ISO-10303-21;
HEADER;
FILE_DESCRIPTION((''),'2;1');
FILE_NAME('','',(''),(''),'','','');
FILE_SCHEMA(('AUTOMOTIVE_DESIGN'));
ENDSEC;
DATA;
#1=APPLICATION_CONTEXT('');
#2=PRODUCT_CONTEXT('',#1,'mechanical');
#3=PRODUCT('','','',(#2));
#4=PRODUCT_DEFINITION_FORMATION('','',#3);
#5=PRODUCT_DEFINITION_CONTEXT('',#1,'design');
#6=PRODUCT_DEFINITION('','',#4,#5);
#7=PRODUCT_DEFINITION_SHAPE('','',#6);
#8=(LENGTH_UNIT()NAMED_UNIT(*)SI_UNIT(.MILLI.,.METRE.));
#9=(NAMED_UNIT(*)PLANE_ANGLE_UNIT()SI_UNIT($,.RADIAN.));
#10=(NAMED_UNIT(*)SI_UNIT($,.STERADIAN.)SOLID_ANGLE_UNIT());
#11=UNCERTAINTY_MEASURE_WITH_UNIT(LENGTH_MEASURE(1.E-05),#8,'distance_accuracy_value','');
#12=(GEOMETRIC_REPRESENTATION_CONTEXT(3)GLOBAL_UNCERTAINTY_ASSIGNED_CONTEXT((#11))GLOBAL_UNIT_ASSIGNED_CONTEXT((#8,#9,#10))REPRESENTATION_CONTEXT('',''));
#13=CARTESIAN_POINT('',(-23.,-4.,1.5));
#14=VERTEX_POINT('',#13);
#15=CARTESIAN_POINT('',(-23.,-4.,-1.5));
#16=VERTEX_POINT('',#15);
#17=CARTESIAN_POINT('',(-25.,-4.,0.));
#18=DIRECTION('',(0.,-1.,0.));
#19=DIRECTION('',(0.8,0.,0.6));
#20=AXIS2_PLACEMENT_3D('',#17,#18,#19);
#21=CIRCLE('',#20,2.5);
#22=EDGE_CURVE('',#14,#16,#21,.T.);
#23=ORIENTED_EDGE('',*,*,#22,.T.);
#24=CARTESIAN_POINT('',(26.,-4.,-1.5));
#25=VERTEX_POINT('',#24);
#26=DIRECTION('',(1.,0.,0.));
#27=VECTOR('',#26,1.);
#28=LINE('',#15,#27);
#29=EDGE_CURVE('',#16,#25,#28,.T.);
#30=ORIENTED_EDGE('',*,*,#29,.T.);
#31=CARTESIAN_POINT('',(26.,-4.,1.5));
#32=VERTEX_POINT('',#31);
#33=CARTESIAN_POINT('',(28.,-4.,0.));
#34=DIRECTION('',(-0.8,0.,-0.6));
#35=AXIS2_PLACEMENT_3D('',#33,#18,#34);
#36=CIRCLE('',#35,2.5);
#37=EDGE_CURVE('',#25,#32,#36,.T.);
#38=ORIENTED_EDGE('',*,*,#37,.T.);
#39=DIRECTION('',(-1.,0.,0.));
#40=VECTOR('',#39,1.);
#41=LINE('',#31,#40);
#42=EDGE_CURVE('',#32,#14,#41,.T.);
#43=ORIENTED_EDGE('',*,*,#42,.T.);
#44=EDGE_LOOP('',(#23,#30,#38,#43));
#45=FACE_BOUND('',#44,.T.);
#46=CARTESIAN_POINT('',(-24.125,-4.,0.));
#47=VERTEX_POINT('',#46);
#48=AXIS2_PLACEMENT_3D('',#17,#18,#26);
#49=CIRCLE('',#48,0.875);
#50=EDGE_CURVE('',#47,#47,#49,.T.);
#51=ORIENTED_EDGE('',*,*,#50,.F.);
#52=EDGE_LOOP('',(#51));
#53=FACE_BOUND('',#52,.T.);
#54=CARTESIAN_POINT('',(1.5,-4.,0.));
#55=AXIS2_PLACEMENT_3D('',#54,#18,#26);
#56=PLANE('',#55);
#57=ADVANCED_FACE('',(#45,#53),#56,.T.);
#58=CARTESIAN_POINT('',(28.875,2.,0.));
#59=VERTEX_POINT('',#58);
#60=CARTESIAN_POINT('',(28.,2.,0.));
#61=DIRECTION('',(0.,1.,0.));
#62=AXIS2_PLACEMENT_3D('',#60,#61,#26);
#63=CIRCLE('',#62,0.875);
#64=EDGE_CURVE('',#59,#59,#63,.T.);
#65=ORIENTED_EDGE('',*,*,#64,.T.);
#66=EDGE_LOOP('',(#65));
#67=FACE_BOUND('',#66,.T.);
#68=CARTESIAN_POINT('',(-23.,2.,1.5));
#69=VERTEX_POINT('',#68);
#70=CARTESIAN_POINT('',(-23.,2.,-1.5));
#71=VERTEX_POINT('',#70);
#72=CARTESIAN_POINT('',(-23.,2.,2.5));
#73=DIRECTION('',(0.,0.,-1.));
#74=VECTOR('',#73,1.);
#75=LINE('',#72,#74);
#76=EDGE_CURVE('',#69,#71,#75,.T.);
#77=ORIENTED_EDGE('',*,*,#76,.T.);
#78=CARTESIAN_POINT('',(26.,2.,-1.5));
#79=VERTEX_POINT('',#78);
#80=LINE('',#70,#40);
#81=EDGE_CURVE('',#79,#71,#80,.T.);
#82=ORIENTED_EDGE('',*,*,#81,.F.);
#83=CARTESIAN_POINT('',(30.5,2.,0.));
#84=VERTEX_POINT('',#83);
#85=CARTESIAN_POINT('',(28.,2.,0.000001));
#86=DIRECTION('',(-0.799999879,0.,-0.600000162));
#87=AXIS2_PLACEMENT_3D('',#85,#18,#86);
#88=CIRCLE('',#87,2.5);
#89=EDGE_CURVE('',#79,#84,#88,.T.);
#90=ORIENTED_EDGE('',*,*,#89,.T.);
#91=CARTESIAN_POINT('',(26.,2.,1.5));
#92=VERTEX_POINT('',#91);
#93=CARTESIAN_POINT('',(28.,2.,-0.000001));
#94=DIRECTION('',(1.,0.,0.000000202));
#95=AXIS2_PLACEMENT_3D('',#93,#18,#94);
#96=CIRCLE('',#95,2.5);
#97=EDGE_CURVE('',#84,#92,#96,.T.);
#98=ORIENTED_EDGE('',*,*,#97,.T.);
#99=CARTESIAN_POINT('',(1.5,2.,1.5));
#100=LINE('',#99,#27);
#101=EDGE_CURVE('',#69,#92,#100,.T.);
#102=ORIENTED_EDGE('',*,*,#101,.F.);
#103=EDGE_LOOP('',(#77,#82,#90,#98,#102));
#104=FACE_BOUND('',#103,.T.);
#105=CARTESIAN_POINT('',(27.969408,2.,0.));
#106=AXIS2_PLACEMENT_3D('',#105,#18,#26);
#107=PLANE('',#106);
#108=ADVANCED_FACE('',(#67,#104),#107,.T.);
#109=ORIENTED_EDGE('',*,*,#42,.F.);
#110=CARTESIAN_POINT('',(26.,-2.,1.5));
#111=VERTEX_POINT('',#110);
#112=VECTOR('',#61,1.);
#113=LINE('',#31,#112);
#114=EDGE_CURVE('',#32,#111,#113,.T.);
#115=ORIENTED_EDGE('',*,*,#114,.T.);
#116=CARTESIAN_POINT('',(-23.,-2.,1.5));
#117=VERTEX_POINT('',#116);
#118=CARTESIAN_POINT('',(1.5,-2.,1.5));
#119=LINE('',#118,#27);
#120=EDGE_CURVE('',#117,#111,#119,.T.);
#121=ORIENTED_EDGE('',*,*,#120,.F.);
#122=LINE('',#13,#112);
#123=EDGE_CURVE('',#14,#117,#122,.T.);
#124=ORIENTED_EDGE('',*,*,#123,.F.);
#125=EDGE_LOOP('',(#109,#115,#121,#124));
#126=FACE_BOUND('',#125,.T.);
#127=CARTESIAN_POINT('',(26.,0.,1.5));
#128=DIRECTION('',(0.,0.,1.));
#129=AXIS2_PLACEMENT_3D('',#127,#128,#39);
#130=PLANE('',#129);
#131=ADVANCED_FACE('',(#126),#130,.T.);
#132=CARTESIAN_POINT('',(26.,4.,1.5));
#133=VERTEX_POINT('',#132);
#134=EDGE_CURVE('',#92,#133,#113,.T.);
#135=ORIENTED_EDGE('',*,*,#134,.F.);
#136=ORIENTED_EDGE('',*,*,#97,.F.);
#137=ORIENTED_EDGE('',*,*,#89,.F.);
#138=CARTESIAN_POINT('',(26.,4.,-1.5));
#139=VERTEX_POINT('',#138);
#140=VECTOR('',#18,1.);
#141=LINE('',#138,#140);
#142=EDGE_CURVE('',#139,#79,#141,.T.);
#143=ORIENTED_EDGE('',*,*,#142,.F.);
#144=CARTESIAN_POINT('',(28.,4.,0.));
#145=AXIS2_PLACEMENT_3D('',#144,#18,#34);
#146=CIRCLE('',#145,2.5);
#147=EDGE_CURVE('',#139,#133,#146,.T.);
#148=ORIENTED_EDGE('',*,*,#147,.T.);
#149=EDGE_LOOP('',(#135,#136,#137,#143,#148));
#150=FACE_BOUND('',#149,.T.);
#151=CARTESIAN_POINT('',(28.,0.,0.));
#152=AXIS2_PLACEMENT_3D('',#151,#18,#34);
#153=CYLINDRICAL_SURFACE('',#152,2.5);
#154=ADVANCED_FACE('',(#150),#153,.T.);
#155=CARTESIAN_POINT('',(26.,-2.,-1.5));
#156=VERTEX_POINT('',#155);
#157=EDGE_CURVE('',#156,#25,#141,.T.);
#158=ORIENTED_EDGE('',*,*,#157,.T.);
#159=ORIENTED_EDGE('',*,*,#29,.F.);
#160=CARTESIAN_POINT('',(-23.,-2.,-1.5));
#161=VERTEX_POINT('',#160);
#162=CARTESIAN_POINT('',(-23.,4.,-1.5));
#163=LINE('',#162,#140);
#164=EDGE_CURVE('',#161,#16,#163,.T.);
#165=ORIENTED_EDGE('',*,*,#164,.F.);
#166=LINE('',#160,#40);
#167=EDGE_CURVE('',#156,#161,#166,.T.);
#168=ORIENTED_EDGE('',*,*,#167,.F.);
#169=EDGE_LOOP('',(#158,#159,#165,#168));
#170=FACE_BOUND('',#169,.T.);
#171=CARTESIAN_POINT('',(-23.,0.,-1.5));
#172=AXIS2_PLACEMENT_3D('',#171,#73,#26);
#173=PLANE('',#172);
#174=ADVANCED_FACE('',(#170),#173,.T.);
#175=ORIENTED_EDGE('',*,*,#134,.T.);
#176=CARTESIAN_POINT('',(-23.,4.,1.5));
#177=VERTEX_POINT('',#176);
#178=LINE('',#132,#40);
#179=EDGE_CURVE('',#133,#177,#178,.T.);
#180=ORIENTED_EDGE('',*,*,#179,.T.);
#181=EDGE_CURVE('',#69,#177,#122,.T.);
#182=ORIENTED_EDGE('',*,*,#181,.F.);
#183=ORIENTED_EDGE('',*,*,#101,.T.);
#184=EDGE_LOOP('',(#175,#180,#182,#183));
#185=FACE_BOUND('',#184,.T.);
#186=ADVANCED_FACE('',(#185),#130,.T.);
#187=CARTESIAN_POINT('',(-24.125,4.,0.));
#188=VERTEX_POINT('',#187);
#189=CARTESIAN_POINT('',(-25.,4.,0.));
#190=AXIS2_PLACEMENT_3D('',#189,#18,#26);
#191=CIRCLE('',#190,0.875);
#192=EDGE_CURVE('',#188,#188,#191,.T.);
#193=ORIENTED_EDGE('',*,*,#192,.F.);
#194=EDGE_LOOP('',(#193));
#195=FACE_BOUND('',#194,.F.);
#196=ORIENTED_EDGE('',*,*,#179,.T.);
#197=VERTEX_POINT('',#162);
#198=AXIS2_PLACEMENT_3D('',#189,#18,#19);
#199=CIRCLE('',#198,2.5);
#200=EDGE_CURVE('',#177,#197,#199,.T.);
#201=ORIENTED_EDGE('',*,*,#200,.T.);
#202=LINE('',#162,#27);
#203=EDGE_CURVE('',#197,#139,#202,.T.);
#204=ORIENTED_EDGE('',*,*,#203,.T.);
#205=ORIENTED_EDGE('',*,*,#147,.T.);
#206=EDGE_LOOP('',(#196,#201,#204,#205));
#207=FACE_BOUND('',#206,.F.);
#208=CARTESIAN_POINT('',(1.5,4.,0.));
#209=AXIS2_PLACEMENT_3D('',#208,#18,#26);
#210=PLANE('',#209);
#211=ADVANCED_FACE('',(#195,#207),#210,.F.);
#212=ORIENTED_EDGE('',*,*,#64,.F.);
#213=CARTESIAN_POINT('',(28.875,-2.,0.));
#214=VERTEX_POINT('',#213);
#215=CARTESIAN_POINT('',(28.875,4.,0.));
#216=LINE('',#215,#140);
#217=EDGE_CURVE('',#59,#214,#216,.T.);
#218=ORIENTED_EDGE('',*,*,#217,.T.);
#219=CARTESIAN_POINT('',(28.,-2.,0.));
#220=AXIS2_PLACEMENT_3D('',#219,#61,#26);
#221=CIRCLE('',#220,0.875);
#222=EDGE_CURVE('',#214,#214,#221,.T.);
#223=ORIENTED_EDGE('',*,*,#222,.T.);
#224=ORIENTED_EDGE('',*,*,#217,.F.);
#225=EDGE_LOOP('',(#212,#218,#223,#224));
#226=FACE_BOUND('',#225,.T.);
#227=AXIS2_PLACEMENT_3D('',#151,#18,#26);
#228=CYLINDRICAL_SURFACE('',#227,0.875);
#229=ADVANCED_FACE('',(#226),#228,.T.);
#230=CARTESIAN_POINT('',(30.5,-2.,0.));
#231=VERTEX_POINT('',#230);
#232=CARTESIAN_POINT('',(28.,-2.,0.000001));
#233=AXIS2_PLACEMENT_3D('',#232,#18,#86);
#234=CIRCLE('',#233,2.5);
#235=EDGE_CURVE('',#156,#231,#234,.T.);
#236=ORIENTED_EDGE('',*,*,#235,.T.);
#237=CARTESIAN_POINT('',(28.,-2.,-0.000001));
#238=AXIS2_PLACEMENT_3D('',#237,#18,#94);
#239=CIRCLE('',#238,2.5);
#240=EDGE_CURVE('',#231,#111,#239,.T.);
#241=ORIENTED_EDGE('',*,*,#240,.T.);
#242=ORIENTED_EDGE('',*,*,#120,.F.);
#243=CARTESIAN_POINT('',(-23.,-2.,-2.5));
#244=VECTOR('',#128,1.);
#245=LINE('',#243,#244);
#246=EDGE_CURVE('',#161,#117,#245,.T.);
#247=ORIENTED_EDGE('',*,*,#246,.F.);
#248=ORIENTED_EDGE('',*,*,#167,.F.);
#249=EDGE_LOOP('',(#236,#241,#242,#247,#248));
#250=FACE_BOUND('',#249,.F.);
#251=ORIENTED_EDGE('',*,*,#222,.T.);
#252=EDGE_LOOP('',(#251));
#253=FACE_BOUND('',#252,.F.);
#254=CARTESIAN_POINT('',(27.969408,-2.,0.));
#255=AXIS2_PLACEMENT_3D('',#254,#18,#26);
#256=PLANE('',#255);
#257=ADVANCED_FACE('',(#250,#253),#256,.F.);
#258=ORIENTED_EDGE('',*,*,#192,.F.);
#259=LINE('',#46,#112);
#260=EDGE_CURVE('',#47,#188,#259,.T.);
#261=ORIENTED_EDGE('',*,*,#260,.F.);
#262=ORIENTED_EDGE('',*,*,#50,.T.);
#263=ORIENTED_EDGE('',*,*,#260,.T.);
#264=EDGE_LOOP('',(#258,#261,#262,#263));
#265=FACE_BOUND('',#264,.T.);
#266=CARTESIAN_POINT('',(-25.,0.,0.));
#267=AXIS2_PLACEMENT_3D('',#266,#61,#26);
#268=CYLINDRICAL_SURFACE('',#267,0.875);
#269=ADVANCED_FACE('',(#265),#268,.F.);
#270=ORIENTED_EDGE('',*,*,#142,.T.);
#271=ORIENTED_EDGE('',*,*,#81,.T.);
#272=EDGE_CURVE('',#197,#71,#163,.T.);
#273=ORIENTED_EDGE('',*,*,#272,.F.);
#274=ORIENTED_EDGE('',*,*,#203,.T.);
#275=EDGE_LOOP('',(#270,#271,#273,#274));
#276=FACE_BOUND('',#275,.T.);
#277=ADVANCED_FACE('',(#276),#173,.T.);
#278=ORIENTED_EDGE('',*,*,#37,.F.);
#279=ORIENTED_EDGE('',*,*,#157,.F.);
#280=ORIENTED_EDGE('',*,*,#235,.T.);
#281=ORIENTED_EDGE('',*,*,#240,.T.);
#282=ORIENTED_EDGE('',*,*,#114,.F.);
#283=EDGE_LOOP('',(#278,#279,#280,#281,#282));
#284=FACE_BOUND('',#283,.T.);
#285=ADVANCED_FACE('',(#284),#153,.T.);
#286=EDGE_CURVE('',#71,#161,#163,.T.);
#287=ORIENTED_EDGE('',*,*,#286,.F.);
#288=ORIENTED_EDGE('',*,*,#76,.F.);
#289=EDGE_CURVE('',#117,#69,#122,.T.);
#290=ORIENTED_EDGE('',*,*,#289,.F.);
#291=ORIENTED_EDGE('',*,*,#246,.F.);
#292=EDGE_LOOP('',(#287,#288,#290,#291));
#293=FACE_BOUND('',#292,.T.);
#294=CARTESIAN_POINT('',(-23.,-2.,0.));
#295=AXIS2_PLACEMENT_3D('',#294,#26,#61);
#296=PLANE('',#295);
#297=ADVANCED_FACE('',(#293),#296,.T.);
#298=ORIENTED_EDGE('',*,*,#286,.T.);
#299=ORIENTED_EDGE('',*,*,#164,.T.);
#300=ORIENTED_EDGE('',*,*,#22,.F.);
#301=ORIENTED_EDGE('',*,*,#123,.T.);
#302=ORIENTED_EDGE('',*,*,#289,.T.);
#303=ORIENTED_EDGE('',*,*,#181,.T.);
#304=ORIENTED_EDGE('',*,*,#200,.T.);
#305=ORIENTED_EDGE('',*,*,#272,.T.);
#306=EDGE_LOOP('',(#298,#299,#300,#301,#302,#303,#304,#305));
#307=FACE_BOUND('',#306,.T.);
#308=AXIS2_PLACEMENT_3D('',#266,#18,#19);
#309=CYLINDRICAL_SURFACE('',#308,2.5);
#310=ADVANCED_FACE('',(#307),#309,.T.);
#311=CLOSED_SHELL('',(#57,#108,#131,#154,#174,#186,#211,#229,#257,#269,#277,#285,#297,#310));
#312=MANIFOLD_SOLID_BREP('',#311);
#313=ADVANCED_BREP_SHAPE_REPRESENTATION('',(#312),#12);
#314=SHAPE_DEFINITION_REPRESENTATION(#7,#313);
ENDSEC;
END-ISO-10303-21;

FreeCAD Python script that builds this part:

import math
import FreeCAD as App
import Part
import Sketcher


def add_polygon(sketch, points):
    """Adds a closed chain of lines whose ends are joined by coincident constraints."""
    first, n = sketch.GeometryCount, len(points)
    for a, b in zip(points, points[1:] + points[:1]):
        sketch.addGeometry(Part.LineSegment(App.Vector(*a, 0), App.Vector(*b, 0)), False)
    for i in range(n):
        sketch.addConstraint(Sketcher.Constraint("Coincident", first + i, 2, first + (i + 1) % n, 1))

doc = App.newDocument("Part")
body = doc.addObject("PartDesign::Body", "Body")

# Sketch on XZ plane
sketch1 = body.newObject("Sketcher::SketchObject", "Sketch")
sketch1.AttachmentSupport = (doc.getObject("XZ_Plane"), [""])
sketch1.MapMode = "FlatFace"
sketch1.addGeometry([
    Part.ArcOfCircle(Part.Circle(App.Vector(-25, 0, 0), App.Vector(0, 0, 1), 2.5), math.radians(37), math.radians(323)),  # 0
    Part.LineSegment(App.Vector(-23, -1.5, 0), App.Vector(26, -1.5, 0)),  # 1
    Part.ArcOfCircle(Part.Circle(App.Vector(28, 0, 0), App.Vector(0, 0, 1), 2.5), math.radians(-143), math.radians(143)),  # 2
    Part.LineSegment(App.Vector(26, 1.5, 0), App.Vector(-23, 1.5, 0)),  # 3
    Part.Circle(App.Vector(-25, 0, 0), App.Vector(0, 0, 1), 0.9),  # 4
    Part.Circle(App.Vector(28, 0, 0), App.Vector(0, 0, 1), 0.9),  # 5
], False)
sketch1.addConstraint([
    Sketcher.Constraint("Coincident", 0, 2, 1, 1),
    Sketcher.Constraint("Coincident", 1, 2, 2, 1),
    Sketcher.Constraint("Coincident", 2, 2, 3, 1),
    Sketcher.Constraint("Coincident", 3, 2, 0, 1),
    Sketcher.Constraint("Horizontal", 1),
    Sketcher.Constraint("Horizontal", 3),
    Sketcher.Constraint("Coincident", 4, 3, 0, 3),
    Sketcher.Constraint("Coincident", 5, 3, 2, 3),
    Sketcher.Constraint("Equal", 0, 2),
    Sketcher.Constraint("Equal", 4, 5),
    Sketcher.Constraint("Symmetric", 1, 2, 2, 2, -1),
    Sketcher.Constraint("PointOnObject", 0, 3, -1),
    Sketcher.Constraint("Radius", 0, 2.5),
    Sketcher.Constraint("Diameter", 4, 1.75),
    Sketcher.Constraint("DistanceX", 1, 1, 1, 2, 49.0),
    Sketcher.Constraint("DistanceX", 0, 3, -1, 1, 25.0),
    Sketcher.Constraint("DistanceX", -1, 1, 2, 3, 28.0),
])
pad1 = body.newObject("PartDesign::Pad", "Pad")
pad1.Profile = sketch1
pad1.Length = 8
pad1.Midplane = True

# Sketch on XZ plane
sketch2 = body.newObject("Sketcher::SketchObject", "Sketch001")
sketch2.AttachmentSupport = (doc.getObject("XZ_Plane"), [""])
sketch2.MapMode = "FlatFace"
sketch2.addGeometry([
    Part.ArcOfCircle(Part.Circle(App.Vector(28, 0, 0), App.Vector(0, 0, 1), 2.5), math.radians(-143), math.radians(0)),
    Part.ArcOfCircle(Part.Circle(App.Vector(28, 0, 0), App.Vector(0, 0, 1), 2.5), math.radians(0), math.radians(143)),
    Part.ArcOfCircle(Part.Circle(App.Vector(28, 0, 0), App.Vector(0, 0, 1), 2.5), math.radians(143), math.radians(217)),
], False)
sketch2.addConstraint([
    Sketcher.Constraint("Tangent", 0, 2, 1, 1),
    Sketcher.Constraint("Tangent", 1, 2, 2, 1),
    Sketcher.Constraint("Tangent", 2, 2, 0, 1),
    Sketcher.Constraint("Symmetric", 1, 2, 2, 2, -1),
    Sketcher.Constraint("PointOnObject", 0, 2, -1),
    Sketcher.Constraint("Radius", 0, 2.5),
    Sketcher.Constraint("DistanceX", -1, 1, 0, 3, 28.0),
    Sketcher.Constraint("DistanceX", -1, 1, 1, 2, 26.0),
])
pocket1 = body.newObject("PartDesign::Pocket", "Pocket")
pocket1.Profile = sketch2
pocket1.Length = 4
pocket1.Midplane = True

# Sketch on XZ plane
sketch3 = body.newObject("Sketcher::SketchObject", "Sketch002")
sketch3.AttachmentSupport = (doc.getObject("XZ_Plane"), [""])
sketch3.MapMode = "FlatFace"
sketch3.addGeometry(Part.Circle(App.Vector(28, 0, 0), App.Vector(0, 0, 1), 0.9), False)
sketch3.addConstraint([
    Sketcher.Constraint("PointOnObject", 0, 3, -1),
    Sketcher.Constraint("Diameter", 0, 1.75),
    Sketcher.Constraint("DistanceX", -1, 1, 0, 3, 28.0),
])
pad2 = body.newObject("PartDesign::Pad", "Pad001")
pad2.Profile = sketch3
pad2.Length = 8
pad2.Midplane = True

# Sketch on XY plane
sketch4 = body.newObject("Sketcher::SketchObject", "Sketch003")
sketch4.AttachmentSupport = (doc.getObject("XY_Plane"), [""])
sketch4.MapMode = "FlatFace"
add_polygon(sketch4, [(-23, 2), (-23, -2), (26, -2), (26, 2)])  # lines 0-3
sketch4.addConstraint([
    Sketcher.Constraint("Vertical", 0),
    Sketcher.Constraint("Horizontal", 1),
    Sketcher.Constraint("Vertical", 2),
    Sketcher.Constraint("Horizontal", 3),
    Sketcher.Constraint("DistanceX", 1, 1, 1, 2, 49.0),
    Sketcher.Constraint("DistanceY", 0, 2, 0, 1, 4.0),
    Sketcher.Constraint("DistanceX", 0, 2, -1, 1, 23.0),
    Sketcher.Constraint("DistanceY", 0, 2, -1, 1, 2.0),
])
pocket2 = body.newObject("PartDesign::Pocket", "Pocket001")
pocket2.Profile = sketch4
pocket2.Length = 5
pocket2.Midplane = True

doc.recompute()
